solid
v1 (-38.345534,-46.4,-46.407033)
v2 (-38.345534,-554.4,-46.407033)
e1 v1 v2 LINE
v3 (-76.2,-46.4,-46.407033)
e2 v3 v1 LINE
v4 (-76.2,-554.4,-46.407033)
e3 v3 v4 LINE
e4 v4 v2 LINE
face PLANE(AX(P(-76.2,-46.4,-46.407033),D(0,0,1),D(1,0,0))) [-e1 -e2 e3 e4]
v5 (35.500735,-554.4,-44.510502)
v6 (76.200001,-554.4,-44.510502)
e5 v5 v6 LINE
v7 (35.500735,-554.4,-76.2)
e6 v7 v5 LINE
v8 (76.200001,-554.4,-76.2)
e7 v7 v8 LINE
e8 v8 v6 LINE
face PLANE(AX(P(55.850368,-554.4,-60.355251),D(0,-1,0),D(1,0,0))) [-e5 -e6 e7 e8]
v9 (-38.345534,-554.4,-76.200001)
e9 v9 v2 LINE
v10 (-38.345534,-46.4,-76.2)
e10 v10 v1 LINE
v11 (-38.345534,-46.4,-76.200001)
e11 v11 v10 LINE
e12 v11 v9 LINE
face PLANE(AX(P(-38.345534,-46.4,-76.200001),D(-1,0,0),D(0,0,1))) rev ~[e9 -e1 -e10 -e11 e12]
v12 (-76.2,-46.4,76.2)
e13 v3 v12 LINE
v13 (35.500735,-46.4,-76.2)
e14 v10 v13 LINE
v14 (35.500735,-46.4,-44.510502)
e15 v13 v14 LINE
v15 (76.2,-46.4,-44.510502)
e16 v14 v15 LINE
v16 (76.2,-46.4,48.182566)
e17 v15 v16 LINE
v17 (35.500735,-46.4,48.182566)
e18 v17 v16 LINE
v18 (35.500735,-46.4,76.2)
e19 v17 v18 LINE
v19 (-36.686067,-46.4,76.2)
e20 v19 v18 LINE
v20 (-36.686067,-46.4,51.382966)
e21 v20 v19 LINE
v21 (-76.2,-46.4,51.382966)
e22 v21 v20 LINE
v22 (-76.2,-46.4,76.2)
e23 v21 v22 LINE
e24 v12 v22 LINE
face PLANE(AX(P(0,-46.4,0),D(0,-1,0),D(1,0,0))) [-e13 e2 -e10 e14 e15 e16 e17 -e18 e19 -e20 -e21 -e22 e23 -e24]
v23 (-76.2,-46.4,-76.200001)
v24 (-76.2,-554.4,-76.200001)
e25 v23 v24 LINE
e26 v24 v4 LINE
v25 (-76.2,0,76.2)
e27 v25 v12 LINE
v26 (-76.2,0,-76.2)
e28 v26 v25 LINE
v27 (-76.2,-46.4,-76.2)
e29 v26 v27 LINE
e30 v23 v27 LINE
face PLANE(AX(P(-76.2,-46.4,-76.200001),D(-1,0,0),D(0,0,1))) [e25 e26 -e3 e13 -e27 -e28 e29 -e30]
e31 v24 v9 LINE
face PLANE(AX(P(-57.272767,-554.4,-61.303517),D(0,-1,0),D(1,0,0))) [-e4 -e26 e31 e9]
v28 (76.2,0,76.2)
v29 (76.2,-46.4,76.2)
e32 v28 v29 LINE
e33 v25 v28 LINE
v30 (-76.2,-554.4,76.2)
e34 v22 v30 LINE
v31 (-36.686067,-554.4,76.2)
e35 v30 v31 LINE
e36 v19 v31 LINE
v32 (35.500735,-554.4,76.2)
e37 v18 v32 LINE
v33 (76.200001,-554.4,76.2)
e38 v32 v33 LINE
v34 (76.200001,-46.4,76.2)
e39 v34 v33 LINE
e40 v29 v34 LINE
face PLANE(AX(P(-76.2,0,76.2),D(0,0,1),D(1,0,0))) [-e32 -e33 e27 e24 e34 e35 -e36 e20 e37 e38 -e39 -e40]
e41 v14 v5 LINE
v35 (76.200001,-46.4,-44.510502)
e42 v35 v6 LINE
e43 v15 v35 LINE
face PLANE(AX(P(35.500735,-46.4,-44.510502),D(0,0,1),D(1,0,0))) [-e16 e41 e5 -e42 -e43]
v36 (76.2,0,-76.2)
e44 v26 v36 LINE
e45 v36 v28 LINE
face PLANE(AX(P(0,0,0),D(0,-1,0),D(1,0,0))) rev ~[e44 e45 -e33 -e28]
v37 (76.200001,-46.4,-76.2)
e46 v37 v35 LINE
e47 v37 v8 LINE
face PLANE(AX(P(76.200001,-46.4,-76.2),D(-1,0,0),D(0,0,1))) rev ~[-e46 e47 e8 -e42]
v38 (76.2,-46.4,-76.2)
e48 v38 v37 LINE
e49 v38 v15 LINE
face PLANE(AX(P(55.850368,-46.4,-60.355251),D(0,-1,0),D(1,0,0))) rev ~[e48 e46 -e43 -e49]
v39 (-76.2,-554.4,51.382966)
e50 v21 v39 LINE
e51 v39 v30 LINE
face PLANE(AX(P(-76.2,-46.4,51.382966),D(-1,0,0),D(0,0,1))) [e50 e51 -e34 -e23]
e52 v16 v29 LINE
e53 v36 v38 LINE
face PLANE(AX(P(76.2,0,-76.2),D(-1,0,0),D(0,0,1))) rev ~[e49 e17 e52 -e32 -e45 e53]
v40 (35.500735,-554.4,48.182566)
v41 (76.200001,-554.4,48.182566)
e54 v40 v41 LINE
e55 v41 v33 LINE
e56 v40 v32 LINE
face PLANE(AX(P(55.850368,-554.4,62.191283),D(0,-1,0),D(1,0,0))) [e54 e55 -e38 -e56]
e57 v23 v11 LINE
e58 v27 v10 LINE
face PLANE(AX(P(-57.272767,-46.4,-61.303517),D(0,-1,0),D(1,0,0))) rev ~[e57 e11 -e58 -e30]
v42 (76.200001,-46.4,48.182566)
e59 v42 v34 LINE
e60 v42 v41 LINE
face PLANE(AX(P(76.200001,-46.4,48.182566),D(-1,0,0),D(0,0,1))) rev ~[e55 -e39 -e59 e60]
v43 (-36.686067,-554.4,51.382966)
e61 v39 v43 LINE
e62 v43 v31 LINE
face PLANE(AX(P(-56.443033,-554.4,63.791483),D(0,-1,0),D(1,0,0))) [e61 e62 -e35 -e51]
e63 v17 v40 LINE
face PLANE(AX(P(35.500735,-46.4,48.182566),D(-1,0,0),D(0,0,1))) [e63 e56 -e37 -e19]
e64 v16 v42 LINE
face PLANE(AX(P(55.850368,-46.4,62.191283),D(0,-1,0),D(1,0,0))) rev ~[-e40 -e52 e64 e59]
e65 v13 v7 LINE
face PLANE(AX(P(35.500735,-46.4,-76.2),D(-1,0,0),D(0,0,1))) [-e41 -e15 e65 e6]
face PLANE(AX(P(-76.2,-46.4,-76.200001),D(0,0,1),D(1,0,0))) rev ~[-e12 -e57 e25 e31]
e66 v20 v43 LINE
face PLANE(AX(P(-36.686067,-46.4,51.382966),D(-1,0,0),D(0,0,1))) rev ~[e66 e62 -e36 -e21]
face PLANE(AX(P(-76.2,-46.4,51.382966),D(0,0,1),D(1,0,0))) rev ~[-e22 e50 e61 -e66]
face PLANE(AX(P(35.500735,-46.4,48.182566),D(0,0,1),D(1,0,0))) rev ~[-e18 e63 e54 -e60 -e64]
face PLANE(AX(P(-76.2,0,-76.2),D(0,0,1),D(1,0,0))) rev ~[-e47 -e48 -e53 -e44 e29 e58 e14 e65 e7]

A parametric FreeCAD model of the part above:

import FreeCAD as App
import Part
import Sketcher

V = App.Vector
Q = App.Units.Quantity


def add_polygon(sketch, points):
    """Adds a closed chain of lines whose ends are joined by coincident constraints."""
    first, n = sketch.GeometryCount, len(points)
    for a, b in zip(points, points[1:] + points[:1]):
        sketch.addGeometry(Part.LineSegment(App.Vector(*a, 0), App.Vector(*b, 0)), False)
    for i in range(n):
        sketch.addConstraint(Sketcher.Constraint("Coincident", first + i, 2, first + (i + 1) % n, 1))

doc = App.newDocument("Part")
body = doc.addObject("PartDesign::Body", "Body")

# Sketch on XZ plane
sketch1 = body.newObject("Sketcher::SketchObject", "Sketch")
sketch1.AttachmentSupport = (doc.getObject("XZ_Plane"), [""])
sketch1.MapMode = "FlatFace"
add_polygon(sketch1, [(-76, 76), (-76, -76), (76, -76), (76, 76)])  # lines 0-3
sketch1.addConstraint(Sketcher.Constraint("Vertical", 0))
sketch1.addConstraint(Sketcher.Constraint("Horizontal", 1))
sketch1.addConstraint(Sketcher.Constraint("Vertical", 2))
sketch1.addConstraint(Sketcher.Constraint("Horizontal", 3))
sketch1.addConstraint(Sketcher.Constraint("Symmetric", 0, 2, 2, 2, -1, 1))
sketch1.addConstraint(Sketcher.Constraint("Equal", 3, 0))
sketch1.addConstraint(Sketcher.Constraint("DistanceX", 1, 1, 1, 2, Q("6 in")))
pad1 = body.newObject("PartDesign::Pad", "Pad")
pad1.Profile = sketch1
pad1.Length = 46.4

# Sketch on XZ plane
sketch2 = body.newObject("Sketcher::SketchObject", "Sketch001")
sketch2.AttachmentSupport = (doc.getObject("XZ_Plane"), [""])
sketch2.MapMode = "FlatFace"
sketch2.AttachmentOffset = App.Placement(V(0, 0, 46.4), App.Rotation())
add_polygon(sketch2, [(-76, -46), (-76, -76), (-38, -76), (-38, -46)])  # lines 0-3
add_polygon(sketch2, [(-76, 76), (-76, 51), (-37, 51), (-37, 76)])  # lines 4-7
add_polygon(sketch2, [(36, -45), (36, -76), (76, -76), (76, -45)])  # lines 8-11
add_polygon(sketch2, [(36, 76), (36, 48), (76, 48), (76, 76)])  # lines 12-15
sketch2.addConstraint(Sketcher.Constraint("Vertical", 0))
sketch2.addConstraint(Sketcher.Constraint("Horizontal", 1))
sketch2.addConstraint(Sketcher.Constraint("Vertical", 2))
sketch2.addConstraint(Sketcher.Constraint("Horizontal", 3))
sketch2.addConstraint(Sketcher.Constraint("Vertical", 4))
sketch2.addConstraint(Sketcher.Constraint("Horizontal", 5))
sketch2.addConstraint(Sketcher.Constraint("Vertical", 6))
sketch2.addConstraint(Sketcher.Constraint("Horizontal", 7))
sketch2.addConstraint(Sketcher.Constraint("Vertical", 8))
sketch2.addConstraint(Sketcher.Constraint("Horizontal", 9))
sketch2.addConstraint(Sketcher.Constraint("Vertical", 10))
sketch2.addConstraint(Sketcher.Constraint("Horizontal", 11))
sketch2.addConstraint(Sketcher.Constraint("Vertical", 12))
sketch2.addConstraint(Sketcher.Constraint("Horizontal", 13))
sketch2.addConstraint(Sketcher.Constraint("Vertical", 14))
sketch2.addConstraint(Sketcher.Constraint("Horizontal", 15))
sketch2.addConstraint(Sketcher.Constraint("Symmetric", 7, 2, 9, 2, -1, 1))
sketch2.addConstraint(Sketcher.Constraint("Symmetric", 0, 2, 14, 2, -1, 1))
sketch2.addConstraint(Sketcher.Constraint("Symmetric", 0, 2, 9, 2, -2))
sketch2.addConstraint(Sketcher.Constraint("Vertical", 11, 2, 12, 2))
sketch2.addConstraint(Sketcher.Constraint("DistanceX", 0, 2, -1, 1, Q("3 in")))
sketch2.addConstraint(Sketcher.Constraint("DistanceY", 0, 2, -1, 1, Q("3 in")))
sketch2.addConstraint(Sketcher.Constraint("DistanceY", 3, 2, 4, 2, Q("3.85 in")))
sketch2.addConstraint(Sketcher.Constraint("DistanceX", 5, 2, 8, 2, Q("2.8420001 in")))
sketch2.addConstraint(Sketcher.Constraint("DistanceY", 12, 2, 5, 2, Q("0.126 in")))
sketch2.addConstraint(Sketcher.Constraint("DistanceY", 8, 2, 8, 1, Q("31.689498 mm")))
sketch2.addConstraint(Sketcher.Constraint("DistanceX", 1, 1, 1, 2, Q("37.854466 mm")))
sketch2.addConstraint(Sketcher.Constraint("DistanceX", 5, 1, 5, 2, Q("39.513933 mm")))
sketch2.addConstraint(Sketcher.Constraint("DistanceY", 0, 2, 0, 1, Q("29.792967 mm")))
pad2 = body.newObject("PartDesign::Pad", "Pad001")
pad2.Profile = sketch2
pad2.Length = Q("20 in")

doc.recompute()
